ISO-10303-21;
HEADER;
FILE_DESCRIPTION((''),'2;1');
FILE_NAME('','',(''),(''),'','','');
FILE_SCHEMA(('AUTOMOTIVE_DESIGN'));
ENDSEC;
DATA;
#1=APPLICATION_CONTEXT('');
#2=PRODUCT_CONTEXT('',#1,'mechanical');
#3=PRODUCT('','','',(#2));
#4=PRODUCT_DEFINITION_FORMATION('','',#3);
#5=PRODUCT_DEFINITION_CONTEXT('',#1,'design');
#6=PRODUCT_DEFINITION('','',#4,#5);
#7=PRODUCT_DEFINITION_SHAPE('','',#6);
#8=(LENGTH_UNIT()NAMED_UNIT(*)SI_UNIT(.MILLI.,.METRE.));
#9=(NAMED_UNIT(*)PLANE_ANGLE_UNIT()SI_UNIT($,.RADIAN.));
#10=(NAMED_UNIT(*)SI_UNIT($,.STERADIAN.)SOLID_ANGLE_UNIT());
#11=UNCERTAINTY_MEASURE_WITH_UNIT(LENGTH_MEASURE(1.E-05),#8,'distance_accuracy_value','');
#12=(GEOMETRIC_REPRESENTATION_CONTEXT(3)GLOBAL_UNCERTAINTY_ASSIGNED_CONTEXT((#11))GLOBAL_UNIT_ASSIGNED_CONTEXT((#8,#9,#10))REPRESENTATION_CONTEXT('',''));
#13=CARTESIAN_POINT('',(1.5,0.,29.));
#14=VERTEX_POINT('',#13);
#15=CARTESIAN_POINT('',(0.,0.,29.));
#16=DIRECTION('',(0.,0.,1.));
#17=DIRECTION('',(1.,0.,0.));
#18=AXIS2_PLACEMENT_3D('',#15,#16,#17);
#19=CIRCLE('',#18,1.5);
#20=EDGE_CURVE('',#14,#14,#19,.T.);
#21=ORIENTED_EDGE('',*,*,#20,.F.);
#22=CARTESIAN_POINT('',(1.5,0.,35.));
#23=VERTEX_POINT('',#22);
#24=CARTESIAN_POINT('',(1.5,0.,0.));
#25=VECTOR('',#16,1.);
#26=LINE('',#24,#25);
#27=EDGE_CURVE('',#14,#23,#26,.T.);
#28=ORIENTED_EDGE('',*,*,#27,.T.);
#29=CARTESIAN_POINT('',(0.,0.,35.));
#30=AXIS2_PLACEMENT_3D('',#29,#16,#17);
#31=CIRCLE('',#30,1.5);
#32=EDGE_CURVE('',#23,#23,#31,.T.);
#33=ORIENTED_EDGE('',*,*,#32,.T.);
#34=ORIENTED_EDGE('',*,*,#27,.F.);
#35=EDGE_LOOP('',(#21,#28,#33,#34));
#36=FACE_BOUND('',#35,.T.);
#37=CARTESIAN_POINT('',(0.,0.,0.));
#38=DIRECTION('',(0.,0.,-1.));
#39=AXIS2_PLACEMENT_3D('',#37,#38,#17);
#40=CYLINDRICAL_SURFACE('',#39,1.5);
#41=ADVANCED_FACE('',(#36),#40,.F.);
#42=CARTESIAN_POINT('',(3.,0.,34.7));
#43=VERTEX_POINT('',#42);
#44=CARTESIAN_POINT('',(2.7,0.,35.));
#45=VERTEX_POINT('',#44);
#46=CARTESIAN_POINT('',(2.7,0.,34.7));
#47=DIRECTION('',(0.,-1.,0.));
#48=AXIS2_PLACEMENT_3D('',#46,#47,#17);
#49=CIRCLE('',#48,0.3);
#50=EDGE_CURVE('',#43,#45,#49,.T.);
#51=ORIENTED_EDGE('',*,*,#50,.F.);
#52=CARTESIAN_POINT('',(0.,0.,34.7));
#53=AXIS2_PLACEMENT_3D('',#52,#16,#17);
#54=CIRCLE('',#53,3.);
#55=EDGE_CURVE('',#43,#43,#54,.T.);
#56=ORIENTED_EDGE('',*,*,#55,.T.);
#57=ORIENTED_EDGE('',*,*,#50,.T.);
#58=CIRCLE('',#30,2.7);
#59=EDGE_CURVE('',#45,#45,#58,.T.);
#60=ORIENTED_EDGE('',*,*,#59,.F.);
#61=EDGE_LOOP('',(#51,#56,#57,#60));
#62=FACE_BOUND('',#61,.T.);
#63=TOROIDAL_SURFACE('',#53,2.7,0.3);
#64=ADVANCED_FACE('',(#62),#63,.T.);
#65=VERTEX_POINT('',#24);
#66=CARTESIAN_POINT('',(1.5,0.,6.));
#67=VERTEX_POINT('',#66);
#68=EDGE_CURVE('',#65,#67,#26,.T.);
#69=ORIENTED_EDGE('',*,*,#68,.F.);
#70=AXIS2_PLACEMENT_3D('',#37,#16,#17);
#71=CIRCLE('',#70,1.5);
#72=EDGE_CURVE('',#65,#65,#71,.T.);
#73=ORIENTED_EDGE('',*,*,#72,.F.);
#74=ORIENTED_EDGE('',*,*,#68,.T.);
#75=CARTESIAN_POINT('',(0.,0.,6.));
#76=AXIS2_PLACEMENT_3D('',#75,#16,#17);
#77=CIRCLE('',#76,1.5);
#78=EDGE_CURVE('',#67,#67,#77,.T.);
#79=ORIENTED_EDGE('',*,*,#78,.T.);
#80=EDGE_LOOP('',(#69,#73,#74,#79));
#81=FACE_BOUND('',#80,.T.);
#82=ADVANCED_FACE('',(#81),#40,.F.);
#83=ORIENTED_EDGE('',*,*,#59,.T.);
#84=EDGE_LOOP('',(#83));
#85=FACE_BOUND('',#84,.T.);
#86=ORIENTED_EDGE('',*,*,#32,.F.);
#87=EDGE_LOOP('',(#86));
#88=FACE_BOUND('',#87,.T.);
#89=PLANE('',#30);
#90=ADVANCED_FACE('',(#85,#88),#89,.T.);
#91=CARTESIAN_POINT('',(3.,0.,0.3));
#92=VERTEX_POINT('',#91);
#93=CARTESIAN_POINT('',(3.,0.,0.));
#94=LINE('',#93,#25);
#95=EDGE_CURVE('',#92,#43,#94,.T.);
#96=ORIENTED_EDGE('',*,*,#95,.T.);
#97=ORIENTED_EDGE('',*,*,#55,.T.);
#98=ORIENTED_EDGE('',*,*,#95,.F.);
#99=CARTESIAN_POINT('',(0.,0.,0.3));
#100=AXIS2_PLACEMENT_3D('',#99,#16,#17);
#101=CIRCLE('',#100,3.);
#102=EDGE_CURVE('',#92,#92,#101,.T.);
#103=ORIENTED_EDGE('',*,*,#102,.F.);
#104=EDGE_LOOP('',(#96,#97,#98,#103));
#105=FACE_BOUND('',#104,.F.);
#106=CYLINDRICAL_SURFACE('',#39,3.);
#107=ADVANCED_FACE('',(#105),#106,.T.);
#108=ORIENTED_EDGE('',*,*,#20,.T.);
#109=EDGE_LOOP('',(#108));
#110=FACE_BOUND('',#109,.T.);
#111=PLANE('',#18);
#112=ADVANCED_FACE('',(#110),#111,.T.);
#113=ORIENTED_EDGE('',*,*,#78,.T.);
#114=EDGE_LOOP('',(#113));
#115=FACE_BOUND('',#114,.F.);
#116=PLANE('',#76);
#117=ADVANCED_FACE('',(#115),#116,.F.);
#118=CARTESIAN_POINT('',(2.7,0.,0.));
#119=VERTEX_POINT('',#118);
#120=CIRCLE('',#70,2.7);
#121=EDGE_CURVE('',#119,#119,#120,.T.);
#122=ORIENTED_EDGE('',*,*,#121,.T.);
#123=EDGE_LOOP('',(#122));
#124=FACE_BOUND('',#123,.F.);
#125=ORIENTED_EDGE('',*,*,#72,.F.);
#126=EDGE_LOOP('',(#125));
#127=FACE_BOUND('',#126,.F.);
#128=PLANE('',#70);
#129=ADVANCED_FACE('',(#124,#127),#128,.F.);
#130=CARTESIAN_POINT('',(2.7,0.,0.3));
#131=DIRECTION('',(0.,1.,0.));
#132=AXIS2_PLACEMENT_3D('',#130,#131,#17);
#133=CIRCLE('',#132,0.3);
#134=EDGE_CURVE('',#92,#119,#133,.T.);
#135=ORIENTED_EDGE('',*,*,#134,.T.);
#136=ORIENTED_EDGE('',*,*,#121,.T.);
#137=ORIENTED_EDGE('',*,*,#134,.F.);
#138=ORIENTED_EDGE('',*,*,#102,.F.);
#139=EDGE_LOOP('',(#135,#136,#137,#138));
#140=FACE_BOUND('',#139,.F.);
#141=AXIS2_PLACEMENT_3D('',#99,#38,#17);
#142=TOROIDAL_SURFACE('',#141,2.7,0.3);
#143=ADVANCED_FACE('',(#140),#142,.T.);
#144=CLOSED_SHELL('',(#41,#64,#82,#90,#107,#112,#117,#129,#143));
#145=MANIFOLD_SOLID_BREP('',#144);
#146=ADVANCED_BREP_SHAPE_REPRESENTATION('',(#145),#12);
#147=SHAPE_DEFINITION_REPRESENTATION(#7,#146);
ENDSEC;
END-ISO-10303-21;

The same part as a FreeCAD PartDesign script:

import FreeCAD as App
import Part
import Sketcher
from FreeCAD import Vector
Q = App.Units.Quantity


def edges_at(feature, points):
    """Names of the edges that pass closest to the given points."""
    edges = feature.Shape.Edges
    near = lambda p: min(range(len(edges)), key=lambda i: edges[i].distToShape(Part.Vertex(*p))[0])
    return sorted({f"Edge{near(p) + 1}" for p in points})

doc = App.newDocument("Part")
body = doc.addObject("PartDesign::Body", "Body")

# Sketch on XY plane
sketch1 = body.newObject("Sketcher::SketchObject", "Sketch")
sketch1.AttachmentSupport = (doc.getObject("XY_Plane"), [""])
sketch1.MapMode = "FlatFace"
sketch1.addGeometry([
    Part.Circle(Vector(0, 0, 0), Vector(0, 0, 1), 3),
    Part.Circle(Vector(0, 0, 0), Vector(0, 0, 1), 1.5),
], False)
sketch1.addConstraint([
    Sketcher.Constraint("Coincident", 0, 3, -1, 1),
    Sketcher.Constraint("Coincident", 1, 3, -1, 1),
    Sketcher.Constraint("Diameter", 0, Q("6 mm")),
    Sketcher.Constraint("Diameter", 1, Q("3 mm")),
])
pad1 = body.newObject("PartDesign::Pad", "Pad")
pad1.Profile = sketch1
pad1.Length = 35
doc.recompute()

fillet = body.newObject("PartDesign::Fillet", "Fillet")
fillet.Base = (pad1, edges_at(pad1, [(-3, 0, 35), (-3, 0, 0)]))
fillet.Radius = 0.3

# Sketch on XY plane
sketch2 = body.newObject("Sketcher::SketchObject", "Sketch001")
sketch2.AttachmentSupport = (doc.getObject("XY_Plane"), [""])
sketch2.MapMode = "FlatFace"
sketch2.addGeometry(Part.Circle(Vector(0, 0, 0), Vector(0, 0, 1), 1.5), False)
sketch2.addConstraint([
    Sketcher.Constraint("Coincident", 0, 3, -1, 1),
    Sketcher.Constraint("Diameter", 0, Q("3 mm")),
])
pad2 = body.newObject("PartDesign::Pad", "Pad001")
pad2.Profile = sketch2
pad2.Length = 29

# Sketch on XY plane
sketch3 = body.newObject("Sketcher::SketchObject", "Sketch002")
sketch3.AttachmentSupport = (doc.getObject("XY_Plane"), [""])
sketch3.MapMode = "FlatFace"
sketch3.addGeometry(Part.Circle(Vector(0, 0, 0), Vector(0, 0, 1), 1.5), False)
sketch3.addConstraint([
    Sketcher.Constraint("Coincident", 0, 3, -1, 1),
    Sketcher.Constraint("Diameter", 0, Q("3 mm")),
])
pocket1 = body.newObject("PartDesign::Pocket", "Pocket")
pocket1.Profile = sketch3
pocket1.Length = 6
pocket1.Reversed = True

doc.recompute()
